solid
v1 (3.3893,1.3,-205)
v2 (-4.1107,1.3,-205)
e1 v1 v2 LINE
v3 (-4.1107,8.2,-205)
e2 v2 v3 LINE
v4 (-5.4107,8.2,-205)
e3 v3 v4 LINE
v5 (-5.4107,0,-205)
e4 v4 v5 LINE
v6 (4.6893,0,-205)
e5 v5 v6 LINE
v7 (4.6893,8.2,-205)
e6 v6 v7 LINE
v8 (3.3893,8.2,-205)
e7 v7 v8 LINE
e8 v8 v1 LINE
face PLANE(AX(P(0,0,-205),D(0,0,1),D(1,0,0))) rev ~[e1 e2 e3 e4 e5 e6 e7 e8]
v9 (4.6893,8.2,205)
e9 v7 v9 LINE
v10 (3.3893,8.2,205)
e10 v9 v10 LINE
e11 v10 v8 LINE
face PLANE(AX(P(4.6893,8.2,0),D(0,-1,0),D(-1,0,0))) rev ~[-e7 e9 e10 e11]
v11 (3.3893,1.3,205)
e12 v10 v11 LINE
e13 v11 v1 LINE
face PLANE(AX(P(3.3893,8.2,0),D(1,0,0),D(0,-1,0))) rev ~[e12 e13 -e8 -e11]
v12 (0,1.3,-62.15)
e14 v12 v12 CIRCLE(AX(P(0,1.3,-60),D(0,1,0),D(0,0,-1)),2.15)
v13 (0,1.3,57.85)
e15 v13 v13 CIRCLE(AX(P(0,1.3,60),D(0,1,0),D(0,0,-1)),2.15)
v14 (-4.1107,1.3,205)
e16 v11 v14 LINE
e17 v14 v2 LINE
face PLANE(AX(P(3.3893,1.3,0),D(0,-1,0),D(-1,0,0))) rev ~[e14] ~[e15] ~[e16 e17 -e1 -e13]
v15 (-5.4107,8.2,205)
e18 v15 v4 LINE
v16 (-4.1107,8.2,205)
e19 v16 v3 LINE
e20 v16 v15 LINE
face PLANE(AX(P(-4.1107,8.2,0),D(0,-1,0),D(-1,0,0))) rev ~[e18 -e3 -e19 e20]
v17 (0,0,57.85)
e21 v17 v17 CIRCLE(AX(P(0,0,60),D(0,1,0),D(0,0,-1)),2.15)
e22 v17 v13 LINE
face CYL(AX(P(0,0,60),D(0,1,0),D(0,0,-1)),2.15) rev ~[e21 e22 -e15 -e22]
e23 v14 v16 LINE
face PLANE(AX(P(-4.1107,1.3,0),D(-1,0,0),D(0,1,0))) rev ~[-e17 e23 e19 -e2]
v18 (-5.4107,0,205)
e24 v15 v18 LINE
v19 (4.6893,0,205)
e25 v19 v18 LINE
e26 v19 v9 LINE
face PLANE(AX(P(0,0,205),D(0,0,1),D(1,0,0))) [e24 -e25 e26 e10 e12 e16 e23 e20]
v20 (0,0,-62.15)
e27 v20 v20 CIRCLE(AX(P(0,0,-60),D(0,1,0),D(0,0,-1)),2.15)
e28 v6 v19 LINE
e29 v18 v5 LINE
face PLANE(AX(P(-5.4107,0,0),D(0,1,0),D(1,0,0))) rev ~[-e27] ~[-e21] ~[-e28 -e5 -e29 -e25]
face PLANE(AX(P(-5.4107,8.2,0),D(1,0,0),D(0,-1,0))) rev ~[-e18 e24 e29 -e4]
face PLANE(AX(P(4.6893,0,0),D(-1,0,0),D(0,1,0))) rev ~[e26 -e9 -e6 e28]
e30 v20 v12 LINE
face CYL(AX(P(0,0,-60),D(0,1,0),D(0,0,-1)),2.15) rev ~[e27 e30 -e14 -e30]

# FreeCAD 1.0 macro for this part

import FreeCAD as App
import Part
import Sketcher
from FreeCAD import Vector
Q = App.Units.Quantity

doc = App.newDocument("Part")
body = doc.addObject("PartDesign::Body", "Body")

# Sketch on XY plane
sketch1 = body.newObject("Sketcher::SketchObject", "Sketch")
sketch1.AttachmentSupport = (doc.getObject("XY_Plane"), [""])
sketch1.MapMode = "FlatFace"
sketch1.addGeometry([
    Part.LineSegment(Vector(-5.4107, 0, 0), Vector(4.6893, 0, 0)),  # 0
    Part.LineSegment(Vector(4.6893, 0, 0), Vector(4.6893, 8.2, 0)),  # 1
    Part.LineSegment(Vector(4.6893, 8.2, 0), Vector(3.3893, 8.2, 0)),  # 2
    Part.LineSegment(Vector(3.3893, 8.2, 0), Vector(3.3893, 1.3, 0)),  # 3
    Part.LineSegment(Vector(3.3893, 1.3, 0), Vector(-4.1107, 1.3, 0)),  # 4
    Part.LineSegment(Vector(-4.1107, 1.3, 0), Vector(-4.1107, 8.2, 0)),  # 5
    Part.LineSegment(Vector(-4.1107, 8.2, 0), Vector(-5.4107, 8.2, 0)),  # 6
    Part.LineSegment(Vector(-5.4107, 8.2, 0), Vector(-5.4107, 0, 0)),  # 7
], False)
sketch1.addConstraint([
    Sketcher.Constraint("Coincident", 0, 2, 1, 1),
    Sketcher.Constraint("Coincident", 1, 2, 2, 1),
    Sketcher.Constraint("Coincident", 2, 2, 3, 1),
    Sketcher.Constraint("Coincident", 3, 2, 4, 1),
    Sketcher.Constraint("Coincident", 4, 2, 5, 1),
    Sketcher.Constraint("Coincident", 5, 2, 6, 1),
    Sketcher.Constraint("Coincident", 6, 2, 7, 1),
    Sketcher.Constraint("Coincident", 7, 2, 0, 1),
    Sketcher.Constraint("Horizontal", 0),
    Sketcher.Constraint("Vertical", 1),
    Sketcher.Constraint("Horizontal", 2),
    Sketcher.Constraint("Vertical", 3),
    Sketcher.Constraint("Horizontal", 4),
    Sketcher.Constraint("Vertical", 5),
    Sketcher.Constraint("Horizontal", 6),
    Sketcher.Constraint("Vertical", 7),
    Sketcher.Constraint("PointOnObject", 0, 2, -1),
    Sketcher.Constraint("Horizontal", 2, 2, 5, 2),
    Sketcher.Constraint("Equal", 2, 6),
    Sketcher.Constraint("DistanceX", 0, 1, 0, 2, Q("10.1 mm")),
    Sketcher.Constraint("DistanceX", 2, 2, 2, 1, Q("1.3 mm")),
    Sketcher.Constraint("DistanceY", 1, 1, 1, 2, Q("8.2 mm")),
    Sketcher.Constraint("DistanceY", -1, 1, 3, 2, Q("1.3 mm")),
    Sketcher.Constraint("DistanceX", -1, 1, 0, 2, Q("4.6893 mm")),
])
pad1 = body.newObject("PartDesign::Pad", "Pad")
pad1.Profile = sketch1
pad1.Length = 410
pad1.Midplane = True

# Sketch on XZ plane
sketch2 = body.newObject("Sketcher::SketchObject", "Sketch001")
sketch2.AttachmentSupport = (doc.getObject("XZ_Plane"), [""])
sketch2.MapMode = "FlatFace"
sketch2.addGeometry([
    Part.Circle(Vector(0, 60, 0), Vector(0, 0, 1), 2.15),
    Part.Circle(Vector(0, -60, 0), Vector(0, 0, 1), 2.15),
], False)
sketch2.addConstraint([
    Sketcher.Constraint("Equal", 0, 1),
    Sketcher.Constraint("Symmetric", 0, 3, 1, 3, -1, 1),
    Sketcher.Constraint("PointOnObject", 0, 3, -2),
    Sketcher.Constraint("Diameter", 0, Q("4.3 mm")),
    Sketcher.Constraint("DistanceY", -1, 1, 0, 3, Q("60 mm")),
])
doc.recompute()
hole = body.newObject("PartDesign::Hole", "Hole")
hole.Profile = sketch2
hole.ThreadType = "None"
hole.Diameter = 4.3
hole.DepthType = "ThroughAll"

doc.recompute()
